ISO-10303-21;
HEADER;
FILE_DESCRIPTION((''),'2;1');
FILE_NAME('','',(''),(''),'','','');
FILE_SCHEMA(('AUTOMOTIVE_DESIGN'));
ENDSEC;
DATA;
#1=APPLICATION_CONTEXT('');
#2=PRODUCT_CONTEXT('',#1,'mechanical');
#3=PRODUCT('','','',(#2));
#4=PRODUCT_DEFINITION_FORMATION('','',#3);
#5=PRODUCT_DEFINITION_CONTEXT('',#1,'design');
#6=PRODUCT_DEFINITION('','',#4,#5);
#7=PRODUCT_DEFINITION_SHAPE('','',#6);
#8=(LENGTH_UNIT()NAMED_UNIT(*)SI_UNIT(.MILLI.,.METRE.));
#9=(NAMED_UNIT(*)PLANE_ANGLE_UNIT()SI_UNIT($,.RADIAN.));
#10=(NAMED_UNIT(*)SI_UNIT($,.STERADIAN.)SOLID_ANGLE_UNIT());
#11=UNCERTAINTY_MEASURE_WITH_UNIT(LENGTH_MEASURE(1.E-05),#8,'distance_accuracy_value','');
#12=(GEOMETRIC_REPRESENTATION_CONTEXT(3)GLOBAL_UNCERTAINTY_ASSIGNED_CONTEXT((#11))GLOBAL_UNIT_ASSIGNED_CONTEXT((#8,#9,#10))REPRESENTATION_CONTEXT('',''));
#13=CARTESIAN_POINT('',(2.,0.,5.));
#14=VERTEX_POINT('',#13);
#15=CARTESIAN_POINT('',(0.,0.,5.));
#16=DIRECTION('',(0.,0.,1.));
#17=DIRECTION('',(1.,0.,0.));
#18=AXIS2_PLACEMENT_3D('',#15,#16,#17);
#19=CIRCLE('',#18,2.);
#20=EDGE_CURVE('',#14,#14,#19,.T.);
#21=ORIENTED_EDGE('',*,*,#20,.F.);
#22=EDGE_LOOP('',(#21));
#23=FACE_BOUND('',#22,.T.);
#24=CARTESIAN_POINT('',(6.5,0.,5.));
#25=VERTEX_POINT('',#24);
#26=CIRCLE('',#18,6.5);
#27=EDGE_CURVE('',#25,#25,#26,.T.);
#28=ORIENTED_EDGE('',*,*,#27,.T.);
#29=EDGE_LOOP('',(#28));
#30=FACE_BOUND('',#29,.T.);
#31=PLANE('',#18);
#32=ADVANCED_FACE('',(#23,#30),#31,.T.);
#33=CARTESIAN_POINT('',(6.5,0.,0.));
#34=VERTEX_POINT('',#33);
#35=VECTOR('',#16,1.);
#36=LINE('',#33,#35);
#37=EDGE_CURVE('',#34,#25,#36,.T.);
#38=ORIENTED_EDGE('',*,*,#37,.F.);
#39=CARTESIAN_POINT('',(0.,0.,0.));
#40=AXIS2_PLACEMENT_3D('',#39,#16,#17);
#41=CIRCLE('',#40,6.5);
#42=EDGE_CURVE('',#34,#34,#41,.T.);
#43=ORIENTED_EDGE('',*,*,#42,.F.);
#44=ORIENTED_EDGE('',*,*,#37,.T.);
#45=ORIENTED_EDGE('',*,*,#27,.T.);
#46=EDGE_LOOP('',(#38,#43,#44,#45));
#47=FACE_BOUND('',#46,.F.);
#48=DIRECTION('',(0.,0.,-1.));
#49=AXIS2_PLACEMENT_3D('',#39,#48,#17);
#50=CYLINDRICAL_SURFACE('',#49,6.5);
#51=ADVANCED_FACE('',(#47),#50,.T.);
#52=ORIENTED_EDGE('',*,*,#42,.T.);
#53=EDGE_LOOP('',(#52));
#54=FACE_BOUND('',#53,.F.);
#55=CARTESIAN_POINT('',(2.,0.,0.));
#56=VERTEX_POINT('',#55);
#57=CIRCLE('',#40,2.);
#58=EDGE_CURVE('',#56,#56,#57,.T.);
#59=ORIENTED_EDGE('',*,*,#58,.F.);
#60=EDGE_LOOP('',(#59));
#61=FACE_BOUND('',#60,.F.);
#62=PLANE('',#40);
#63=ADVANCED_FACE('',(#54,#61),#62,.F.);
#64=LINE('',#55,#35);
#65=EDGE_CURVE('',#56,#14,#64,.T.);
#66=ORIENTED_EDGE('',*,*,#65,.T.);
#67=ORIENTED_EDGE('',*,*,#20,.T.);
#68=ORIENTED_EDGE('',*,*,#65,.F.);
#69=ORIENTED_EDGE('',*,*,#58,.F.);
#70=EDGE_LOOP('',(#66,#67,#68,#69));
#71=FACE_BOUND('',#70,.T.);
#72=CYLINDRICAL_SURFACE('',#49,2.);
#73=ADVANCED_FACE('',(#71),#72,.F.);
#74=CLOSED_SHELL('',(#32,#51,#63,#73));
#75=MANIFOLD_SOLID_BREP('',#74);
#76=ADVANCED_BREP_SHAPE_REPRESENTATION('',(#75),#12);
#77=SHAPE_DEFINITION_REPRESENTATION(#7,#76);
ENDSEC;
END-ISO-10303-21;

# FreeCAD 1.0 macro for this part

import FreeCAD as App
import Part
import Sketcher
from FreeCAD import Vector

doc = App.newDocument("Part")
params = doc.addObject("Spreadsheet::Sheet", "Params")
for row, (alias, value) in enumerate([
    ("sketch1_diameter", "13 mm"),
    ("sketch1_diameter2", "4 mm"),
    ("pad1_length", "5 mm"),
], start=1):
    params.set(f"A{row}", alias)
    params.set(f"B{row}", "=" + value)
    params.setAlias(f"B{row}", alias)

body = doc.addObject("PartDesign::Body", "Body")

# Sketch on XY plane
sketch1 = body.newObject("Sketcher::SketchObject", "Sketch")
sketch1.AttachmentSupport = (doc.getObject("XY_Plane"), [""])
sketch1.MapMode = "FlatFace"
sketch1.addGeometry([
    Part.Circle(Vector(0, 0, 0), Vector(0, 0, 1), 6.5),
    Part.Circle(Vector(0, 0, 0), Vector(0, 0, 1), 2),
], False)
sketch1.addConstraint([
    Sketcher.Constraint("Coincident", 0, 3, -1, 1),
    Sketcher.Constraint("Coincident", 1, 3, -1, 1),
    Sketcher.Constraint("Diameter", 0, 13.0),
    Sketcher.Constraint("Diameter", 1, 4.0),
])
sketch1.setExpression("Constraints[2]", "Params.sketch1_diameter")
sketch1.setExpression("Constraints[3]", "Params.sketch1_diameter2")
pad1 = body.newObject("PartDesign::Pad", "Pad")
pad1.Profile = sketch1
pad1.setExpression("Length", "Params.pad1_length")

doc.recompute()
